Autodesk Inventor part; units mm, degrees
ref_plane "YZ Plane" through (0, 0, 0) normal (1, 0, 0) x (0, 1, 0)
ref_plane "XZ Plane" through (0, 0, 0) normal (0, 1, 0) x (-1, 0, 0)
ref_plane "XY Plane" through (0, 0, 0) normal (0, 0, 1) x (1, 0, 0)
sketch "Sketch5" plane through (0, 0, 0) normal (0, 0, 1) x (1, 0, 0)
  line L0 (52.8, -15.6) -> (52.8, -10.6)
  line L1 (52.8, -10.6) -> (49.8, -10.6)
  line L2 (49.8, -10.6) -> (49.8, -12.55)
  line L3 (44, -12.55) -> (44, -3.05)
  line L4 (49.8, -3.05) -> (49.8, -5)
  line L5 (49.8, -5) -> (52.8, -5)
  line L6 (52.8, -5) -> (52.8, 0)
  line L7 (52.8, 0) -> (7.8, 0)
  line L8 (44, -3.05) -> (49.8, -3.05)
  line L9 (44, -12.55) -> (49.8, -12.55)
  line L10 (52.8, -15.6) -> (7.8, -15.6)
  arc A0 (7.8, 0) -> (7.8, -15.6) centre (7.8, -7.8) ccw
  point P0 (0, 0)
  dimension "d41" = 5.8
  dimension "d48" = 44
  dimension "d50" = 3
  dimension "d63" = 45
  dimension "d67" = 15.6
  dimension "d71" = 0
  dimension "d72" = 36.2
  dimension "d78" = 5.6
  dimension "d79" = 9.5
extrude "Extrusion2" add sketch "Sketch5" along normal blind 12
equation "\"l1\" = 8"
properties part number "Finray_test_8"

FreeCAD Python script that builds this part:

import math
import FreeCAD as App
import Part
import Sketcher

V = App.Vector

doc = App.newDocument("Part")
params = doc.addObject("Spreadsheet::Sheet", "Params")
for row, (alias, value) in enumerate([
    ("sketch1_radius", "7.8 mm"),
    ("sketch1_width", "45 mm"),
    ("sketch1_width2", "3 mm"),
    ("sketch1_width3", "5.8 mm"),
    ("sketch1_height", "9.5 mm"),
    ("pad1_length", "12 mm"),
], start=1):
    params.set(f"A{row}", alias)
    params.set(f"B{row}", "=" + value)
    params.setAlias(f"B{row}", alias)

body = doc.addObject("PartDesign::Body", "Body")

sketch1 = doc.addObject("Sketcher::SketchObject", "Sketch")
body.addObject(sketch1)
sketch1.AttachmentSupport = (doc.XY_Plane, [""])
sketch1.MapMode = "FlatFace"
sketch1.addGeometry([
    Part.LineSegment(V(7.8, -15.6, 0), V(52.8, -15.6, 0)),
    Part.LineSegment(V(52.8, -15.6, 0), V(52.8, -10.6, 0)),
    Part.LineSegment(V(52.8, -10.6, 0), V(49.8, -10.6, 0)),
    Part.LineSegment(V(49.8, -10.6, 0), V(49.8, -12.6, 0)),
    Part.LineSegment(V(49.8, -12.6, 0), V(44, -12.6, 0)),
    Part.LineSegment(V(44, -12.6, 0), V(44, -3, 0)),
    Part.LineSegment(V(44, -3, 0), V(49.8, -3, 0)),
    Part.LineSegment(V(49.8, -3, 0), V(49.8, -5, 0)),
    Part.LineSegment(V(49.8, -5, 0), V(52.8, -5, 0)),
    Part.LineSegment(V(52.8, -5, 0), V(52.8, 0, 0)),
    Part.LineSegment(V(52.8, 0, 0), V(7.8, 0, 0)),
    Part.ArcOfCircle(Part.Circle(V(7.8, -7.8, 0), V(0, 0, 1), 7.8), math.radians(90), math.radians(270)),
], False)
sketch1.addConstraint([
    Sketcher.Constraint("Coincident", 0, 2, 1, 1),
    Sketcher.Constraint("Coincident", 1, 2, 2, 1),
    Sketcher.Constraint("Coincident", 2, 2, 3, 1),
    Sketcher.Constraint("Coincident", 3, 2, 4, 1),
    Sketcher.Constraint("Coincident", 4, 2, 5, 1),
    Sketcher.Constraint("Coincident", 5, 2, 6, 1),
    Sketcher.Constraint("Coincident", 6, 2, 7, 1),
    Sketcher.Constraint("Coincident", 7, 2, 8, 1),
    Sketcher.Constraint("Coincident", 8, 2, 9, 1),
    Sketcher.Constraint("Coincident", 9, 2, 10, 1),
    Sketcher.Constraint("Tangent", 10, 2, 11, 1),
    Sketcher.Constraint("Tangent", 11, 2, 0, 1),
    Sketcher.Constraint("Horizontal", 0),
    Sketcher.Constraint("Vertical", 1),
    Sketcher.Constraint("Horizontal", 2),
    Sketcher.Constraint("Vertical", 3),
    Sketcher.Constraint("Horizontal", 4),
    Sketcher.Constraint("Vertical", 5),
    Sketcher.Constraint("Horizontal", 6),
    Sketcher.Constraint("Vertical", 7),
    Sketcher.Constraint("Horizontal", 8),
    Sketcher.Constraint("Vertical", 9),
    Sketcher.Constraint("Horizontal", 10),
    Sketcher.Constraint("PointOnObject", 9, 2, -1),
    Sketcher.Constraint("Vertical", 3, 2, 6, 2),
    Sketcher.Constraint("Vertical", 1, 2, 8, 2),
    Sketcher.Constraint("Equal", 3, 7),
    Sketcher.Constraint("Equal", 1, 9),
    Sketcher.Constraint("Radius", 11, 7.8),
    Sketcher.Constraint("DistanceX", 0, 1, 0, 2, 45.0),
    Sketcher.Constraint("DistanceX", 2, 2, 2, 1, 3.0),
    Sketcher.Constraint("DistanceX", 4, 2, 4, 1, 5.8),
    Sketcher.Constraint("DistanceY", 5, 1, 5, 2, 9.5),
    Sketcher.Constraint("DistanceX", -1, 1, 4, 2, 44.0),
    Sketcher.Constraint("DistanceY", 2, 2, 7, 2, 5.6),
])
sketch1.setExpression("Constraints[28]", "Params.sketch1_radius")
sketch1.setExpression("Constraints[29]", "Params.sketch1_width")
sketch1.setExpression("Constraints[30]", "Params.sketch1_width2")
sketch1.setExpression("Constraints[31]", "Params.sketch1_width3")
sketch1.setExpression("Constraints[32]", "Params.sketch1_height")
pad1 = doc.addObject("PartDesign::Pad", "Pad")
body.addObject(pad1)
pad1.Profile = sketch1
pad1.setExpression("Length", "Params.pad1_length")

doc.recompute()
